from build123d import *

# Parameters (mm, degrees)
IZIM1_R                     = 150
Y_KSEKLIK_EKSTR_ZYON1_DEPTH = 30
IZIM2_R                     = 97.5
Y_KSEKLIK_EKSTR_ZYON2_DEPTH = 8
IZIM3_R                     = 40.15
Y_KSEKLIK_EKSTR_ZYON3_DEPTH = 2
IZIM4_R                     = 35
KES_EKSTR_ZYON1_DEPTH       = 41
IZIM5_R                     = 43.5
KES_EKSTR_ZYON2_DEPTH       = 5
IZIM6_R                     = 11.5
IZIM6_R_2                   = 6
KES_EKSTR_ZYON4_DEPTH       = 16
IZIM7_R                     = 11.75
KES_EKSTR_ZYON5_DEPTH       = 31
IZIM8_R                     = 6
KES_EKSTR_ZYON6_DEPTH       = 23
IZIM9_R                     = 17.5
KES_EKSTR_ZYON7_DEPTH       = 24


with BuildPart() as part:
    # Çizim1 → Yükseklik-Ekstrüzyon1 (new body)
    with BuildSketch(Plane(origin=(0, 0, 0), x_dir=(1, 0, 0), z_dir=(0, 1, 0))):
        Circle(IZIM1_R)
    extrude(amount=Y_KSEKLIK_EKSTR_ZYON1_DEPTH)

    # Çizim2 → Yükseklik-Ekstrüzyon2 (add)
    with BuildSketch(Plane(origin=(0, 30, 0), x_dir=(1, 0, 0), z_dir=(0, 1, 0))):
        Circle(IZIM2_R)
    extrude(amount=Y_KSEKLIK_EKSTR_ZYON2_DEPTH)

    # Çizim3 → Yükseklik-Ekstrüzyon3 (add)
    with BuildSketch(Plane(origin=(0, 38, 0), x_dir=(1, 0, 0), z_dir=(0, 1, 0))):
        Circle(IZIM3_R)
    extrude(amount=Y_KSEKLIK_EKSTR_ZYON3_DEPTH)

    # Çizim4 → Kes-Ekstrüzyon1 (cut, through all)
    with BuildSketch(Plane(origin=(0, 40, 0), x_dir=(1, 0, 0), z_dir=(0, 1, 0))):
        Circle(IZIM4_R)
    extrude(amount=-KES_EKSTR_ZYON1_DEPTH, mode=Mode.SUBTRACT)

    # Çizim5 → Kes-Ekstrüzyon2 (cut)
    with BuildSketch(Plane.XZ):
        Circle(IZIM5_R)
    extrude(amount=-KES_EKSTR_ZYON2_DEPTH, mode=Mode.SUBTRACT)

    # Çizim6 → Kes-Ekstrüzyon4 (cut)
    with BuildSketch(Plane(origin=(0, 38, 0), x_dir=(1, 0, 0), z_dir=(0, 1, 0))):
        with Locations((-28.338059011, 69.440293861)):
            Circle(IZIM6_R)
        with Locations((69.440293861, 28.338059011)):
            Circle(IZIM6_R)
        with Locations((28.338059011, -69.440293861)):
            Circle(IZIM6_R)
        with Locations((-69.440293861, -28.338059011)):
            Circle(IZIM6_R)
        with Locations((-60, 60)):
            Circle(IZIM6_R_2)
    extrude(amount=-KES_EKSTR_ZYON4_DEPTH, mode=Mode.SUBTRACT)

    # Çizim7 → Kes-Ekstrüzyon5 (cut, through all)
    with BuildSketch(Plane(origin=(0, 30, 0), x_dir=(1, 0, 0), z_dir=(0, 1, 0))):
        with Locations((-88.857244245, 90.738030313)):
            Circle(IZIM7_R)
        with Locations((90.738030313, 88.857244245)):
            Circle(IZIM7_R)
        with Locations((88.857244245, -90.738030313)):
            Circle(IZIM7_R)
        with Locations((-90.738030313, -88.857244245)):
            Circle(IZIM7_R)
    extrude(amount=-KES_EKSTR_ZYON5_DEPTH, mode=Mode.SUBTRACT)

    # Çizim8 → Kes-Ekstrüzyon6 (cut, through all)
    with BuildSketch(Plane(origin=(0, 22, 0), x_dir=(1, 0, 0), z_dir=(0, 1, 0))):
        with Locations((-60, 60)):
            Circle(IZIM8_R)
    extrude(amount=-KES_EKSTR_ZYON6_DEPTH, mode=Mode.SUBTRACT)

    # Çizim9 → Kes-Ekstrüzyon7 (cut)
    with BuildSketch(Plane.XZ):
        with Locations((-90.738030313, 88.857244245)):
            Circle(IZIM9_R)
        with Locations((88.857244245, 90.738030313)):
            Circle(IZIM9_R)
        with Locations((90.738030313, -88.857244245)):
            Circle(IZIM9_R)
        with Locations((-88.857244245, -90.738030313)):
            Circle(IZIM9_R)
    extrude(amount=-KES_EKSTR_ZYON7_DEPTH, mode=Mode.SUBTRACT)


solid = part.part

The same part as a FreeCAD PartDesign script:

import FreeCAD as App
import Part
import Sketcher

V = App.Vector

doc = App.newDocument("Part")
body = doc.addObject("PartDesign::Body", "Body")

sketch1 = body.newObject("Sketcher::SketchObject", "Sketch")
sketch1.AttachmentSupport = (doc.getObject("XZ_Plane"), [""])
sketch1.MapMode = "FlatFace"
sketch1.addGeometry(Part.Circle(V(0, 0, 0), V(0, 0, 1), 150), False)
sketch1.addConstraint([
    Sketcher.Constraint("Coincident", 0, 3, -1, 1),
    Sketcher.Constraint("Diameter", 0, 300.0),
])
pad1 = body.newObject("PartDesign::Pad", "Pad")
pad1.Profile = sketch1
pad1.Length = 30
pad1.Reversed = True

sketch2 = body.newObject("Sketcher::SketchObject", "Sketch001")
sketch2.AttachmentSupport = (doc.getObject("XZ_Plane"), [""])
sketch2.MapMode = "FlatFace"
sketch2.AttachmentOffset = App.Placement(V(0, 0, -30), App.Rotation())
sketch2.addGeometry(Part.Circle(V(0, 0, 0), V(0, 0, 1), 98), False)
sketch2.addConstraint([
    Sketcher.Constraint("Coincident", 0, 3, -1, 1),
    Sketcher.Constraint("Diameter", 0, 195.0),
])
pad2 = body.newObject("PartDesign::Pad", "Pad001")
pad2.Profile = sketch2
pad2.Length = 8
pad2.Reversed = True

sketch3 = body.newObject("Sketcher::SketchObject", "Sketch002")
sketch3.AttachmentSupport = (doc.getObject("XZ_Plane"), [""])
sketch3.MapMode = "FlatFace"
sketch3.AttachmentOffset = App.Placement(V(0, 0, -38), App.Rotation())
sketch3.addGeometry(Part.Circle(V(0, 0, 0), V(0, 0, 1), 40), False)
sketch3.addConstraint([
    Sketcher.Constraint("Coincident", 0, 3, -1, 1),
    Sketcher.Constraint("Diameter", 0, 80.3),
])
pad3 = body.newObject("PartDesign::Pad", "Pad002")
pad3.Profile = sketch3
pad3.Length = 2
pad3.Reversed = True

sketch4 = body.newObject("Sketcher::SketchObject", "Sketch003")
sketch4.AttachmentSupport = (doc.getObject("XZ_Plane"), [""])
sketch4.MapMode = "FlatFace"
sketch4.AttachmentOffset = App.Placement(V(0, 0, -40), App.Rotation())
sketch4.addGeometry(Part.Circle(V(0, 0, 0), V(0, 0, 1), 35), False)
sketch4.addConstraint([
    Sketcher.Constraint("Coincident", 0, 3, -1, 1),
    Sketcher.Constraint("Diameter", 0, 70.0),
])
pocket1 = body.newObject("PartDesign::Pocket", "Pocket")
pocket1.Profile = sketch4
pocket1.Type = "ThroughAll"
pocket1.Reversed = True

sketch5 = body.newObject("Sketcher::SketchObject", "Sketch004")
sketch5.AttachmentSupport = (doc.getObject("XZ_Plane"), [""])
sketch5.MapMode = "FlatFace"
sketch5.addGeometry(Part.Circle(V(0, 0, 0), V(0, 0, 1), 44), False)
sketch5.addConstraint([
    Sketcher.Constraint("Coincident", 0, 3, -1, 1),
    Sketcher.Constraint("Diameter", 0, 87.0),
])
pocket2 = body.newObject("PartDesign::Pocket", "Pocket001")
pocket2.Profile = sketch5
pocket2.Length = 5

sketch6 = body.newObject("Sketcher::SketchObject", "Sketch005")
sketch6.AttachmentSupport = (doc.getObject("XZ_Plane"), [""])
sketch6.MapMode = "FlatFace"
sketch6.AttachmentOffset = App.Placement(V(0, 0, -38), App.Rotation())
sketch6.addGeometry([
    Part.Circle(V(-28, -69, 0), V(0, 0, 1), 12),
    Part.Circle(V(69, -28, 0), V(0, 0, 1), 12),
    Part.Circle(V(28, 69, 0), V(0, 0, 1), 12),
    Part.Circle(V(-69, 28, 0), V(0, 0, 1), 12),
    Part.Circle(V(-60, -60, 0), V(0, 0, 1), 6),
], False)
sketch6.addConstraint([
    Sketcher.Constraint("Equal", 0, 1),
    Sketcher.Constraint("Equal", 1, 2),
    Sketcher.Constraint("Equal", 2, 3),
    Sketcher.Constraint("Symmetric", 0, 3, 2, 3, -1, 1),
    Sketcher.Constraint("Symmetric", 1, 3, 3, 3, -1, 1),
    Sketcher.Constraint("Diameter", 0, 23.0),
    Sketcher.Constraint("Diameter", 4, 12.0),
    Sketcher.Constraint("DistanceX", 4, 3, -1, 1, 60.0),
    Sketcher.Constraint("DistanceY", 4, 3, -1, 1, 60.0),
    Sketcher.Constraint("DistanceX", 0, 3, -1, 1, 28.338059),
    Sketcher.Constraint("DistanceY", 1, 3, -1, 1, 28.338059),
    Sketcher.Constraint("DistanceY", 0, 3, -1, 1, 69.440294),
    Sketcher.Constraint("DistanceX", -1, 1, 1, 3, 69.440294),
])
pocket3 = body.newObject("PartDesign::Pocket", "Pocket002")
pocket3.Profile = sketch6
pocket3.Length = 16
pocket3.Reversed = True

sketch7 = body.newObject("Sketcher::SketchObject", "Sketch006")
sketch7.AttachmentSupport = (doc.getObject("XZ_Plane"), [""])
sketch7.MapMode = "FlatFace"
sketch7.AttachmentOffset = App.Placement(V(0, 0, -30), App.Rotation())
sketch7.addGeometry([
    Part.Circle(V(-89, -91, 0), V(0, 0, 1), 12),
    Part.Circle(V(91, -89, 0), V(0, 0, 1), 12),
    Part.Circle(V(89, 91, 0), V(0, 0, 1), 12),
    Part.Circle(V(-91, 89, 0), V(0, 0, 1), 12),
], False)
sketch7.addConstraint([
    Sketcher.Constraint("Equal", 0, 1),
    Sketcher.Constraint("Equal", 1, 2),
    Sketcher.Constraint("Equal", 2, 3),
    Sketcher.Constraint("Symmetric", 0, 3, 2, 3, -1, 1),
    Sketcher.Constraint("Symmetric", 1, 3, 3, 3, -1, 1),
    Sketcher.Constraint("Diameter", 0, 23.5),
    Sketcher.Constraint("DistanceY", 0, 3, -1, 1, 90.73803),
    Sketcher.Constraint("DistanceX", -1, 1, 1, 3, 90.73803),
    Sketcher.Constraint("DistanceX", 0, 3, 2, 3, 177.714488),
    Sketcher.Constraint("DistanceY", 1, 3, 3, 3, 177.714488),
])
pocket4 = body.newObject("PartDesign::Pocket", "Pocket003")
pocket4.Profile = sketch7
pocket4.Type = "ThroughAll"
pocket4.Reversed = True

sketch8 = body.newObject("Sketcher::SketchObject", "Sketch007")
sketch8.AttachmentSupport = (doc.getObject("XZ_Plane"), [""])
sketch8.MapMode = "FlatFace"
sketch8.AttachmentOffset = App.Placement(V(0, 0, -22), App.Rotation())
sketch8.addGeometry(Part.Circle(V(-60, -60, 0), V(0, 0, 1), 6), False)
sketch8.addConstraint([
    Sketcher.Constraint("Diameter", 0, 12.0),
    Sketcher.Constraint("DistanceX", 0, 3, -1, 1, 60.0),
    Sketcher.Constraint("DistanceY", 0, 3, -1, 1, 60.0),
])
pocket5 = body.newObject("PartDesign::Pocket", "Pocket004")
pocket5.Profile = sketch8
pocket5.Type = "ThroughAll"
pocket5.Reversed = True

sketch9 = body.newObject("Sketcher::SketchObject", "Sketch008")
sketch9.AttachmentSupport = (doc.getObject("XZ_Plane"), [""])
sketch9.MapMode = "FlatFace"
sketch9.addGeometry([
    Part.Circle(V(-91, 89, 0), V(0, 0, 1), 18),
    Part.Circle(V(89, 91, 0), V(0, 0, 1), 18),
    Part.Circle(V(91, -89, 0), V(0, 0, 1), 18),
    Part.Circle(V(-89, -91, 0), V(0, 0, 1), 18),
], False)
sketch9.addConstraint([
    Sketcher.Constraint("Equal", 0, 1),
    Sketcher.Constraint("Equal", 1, 2),
    Sketcher.Constraint("Equal", 2, 3),
    Sketcher.Constraint("Symmetric", 0, 3, 2, 3, -1, 1),
    Sketcher.Constraint("Symmetric", 1, 3, 3, 3, -1, 1),
    Sketcher.Constraint("Diameter", 0, 35.0),
    Sketcher.Constraint("DistanceX", 0, 3, -1, 1, 90.73803),
    Sketcher.Constraint("DistanceY", -1, 1, 1, 3, 90.73803),
    Sketcher.Constraint("DistanceY", 2, 3, 0, 3, 177.714488),
    Sketcher.Constraint("DistanceX", 3, 3, 1, 3, 177.714488),
])
pocket6 = body.newObject("PartDesign::Pocket", "Pocket005")
pocket6.Profile = sketch9
pocket6.Length = 24

doc.recompute()
